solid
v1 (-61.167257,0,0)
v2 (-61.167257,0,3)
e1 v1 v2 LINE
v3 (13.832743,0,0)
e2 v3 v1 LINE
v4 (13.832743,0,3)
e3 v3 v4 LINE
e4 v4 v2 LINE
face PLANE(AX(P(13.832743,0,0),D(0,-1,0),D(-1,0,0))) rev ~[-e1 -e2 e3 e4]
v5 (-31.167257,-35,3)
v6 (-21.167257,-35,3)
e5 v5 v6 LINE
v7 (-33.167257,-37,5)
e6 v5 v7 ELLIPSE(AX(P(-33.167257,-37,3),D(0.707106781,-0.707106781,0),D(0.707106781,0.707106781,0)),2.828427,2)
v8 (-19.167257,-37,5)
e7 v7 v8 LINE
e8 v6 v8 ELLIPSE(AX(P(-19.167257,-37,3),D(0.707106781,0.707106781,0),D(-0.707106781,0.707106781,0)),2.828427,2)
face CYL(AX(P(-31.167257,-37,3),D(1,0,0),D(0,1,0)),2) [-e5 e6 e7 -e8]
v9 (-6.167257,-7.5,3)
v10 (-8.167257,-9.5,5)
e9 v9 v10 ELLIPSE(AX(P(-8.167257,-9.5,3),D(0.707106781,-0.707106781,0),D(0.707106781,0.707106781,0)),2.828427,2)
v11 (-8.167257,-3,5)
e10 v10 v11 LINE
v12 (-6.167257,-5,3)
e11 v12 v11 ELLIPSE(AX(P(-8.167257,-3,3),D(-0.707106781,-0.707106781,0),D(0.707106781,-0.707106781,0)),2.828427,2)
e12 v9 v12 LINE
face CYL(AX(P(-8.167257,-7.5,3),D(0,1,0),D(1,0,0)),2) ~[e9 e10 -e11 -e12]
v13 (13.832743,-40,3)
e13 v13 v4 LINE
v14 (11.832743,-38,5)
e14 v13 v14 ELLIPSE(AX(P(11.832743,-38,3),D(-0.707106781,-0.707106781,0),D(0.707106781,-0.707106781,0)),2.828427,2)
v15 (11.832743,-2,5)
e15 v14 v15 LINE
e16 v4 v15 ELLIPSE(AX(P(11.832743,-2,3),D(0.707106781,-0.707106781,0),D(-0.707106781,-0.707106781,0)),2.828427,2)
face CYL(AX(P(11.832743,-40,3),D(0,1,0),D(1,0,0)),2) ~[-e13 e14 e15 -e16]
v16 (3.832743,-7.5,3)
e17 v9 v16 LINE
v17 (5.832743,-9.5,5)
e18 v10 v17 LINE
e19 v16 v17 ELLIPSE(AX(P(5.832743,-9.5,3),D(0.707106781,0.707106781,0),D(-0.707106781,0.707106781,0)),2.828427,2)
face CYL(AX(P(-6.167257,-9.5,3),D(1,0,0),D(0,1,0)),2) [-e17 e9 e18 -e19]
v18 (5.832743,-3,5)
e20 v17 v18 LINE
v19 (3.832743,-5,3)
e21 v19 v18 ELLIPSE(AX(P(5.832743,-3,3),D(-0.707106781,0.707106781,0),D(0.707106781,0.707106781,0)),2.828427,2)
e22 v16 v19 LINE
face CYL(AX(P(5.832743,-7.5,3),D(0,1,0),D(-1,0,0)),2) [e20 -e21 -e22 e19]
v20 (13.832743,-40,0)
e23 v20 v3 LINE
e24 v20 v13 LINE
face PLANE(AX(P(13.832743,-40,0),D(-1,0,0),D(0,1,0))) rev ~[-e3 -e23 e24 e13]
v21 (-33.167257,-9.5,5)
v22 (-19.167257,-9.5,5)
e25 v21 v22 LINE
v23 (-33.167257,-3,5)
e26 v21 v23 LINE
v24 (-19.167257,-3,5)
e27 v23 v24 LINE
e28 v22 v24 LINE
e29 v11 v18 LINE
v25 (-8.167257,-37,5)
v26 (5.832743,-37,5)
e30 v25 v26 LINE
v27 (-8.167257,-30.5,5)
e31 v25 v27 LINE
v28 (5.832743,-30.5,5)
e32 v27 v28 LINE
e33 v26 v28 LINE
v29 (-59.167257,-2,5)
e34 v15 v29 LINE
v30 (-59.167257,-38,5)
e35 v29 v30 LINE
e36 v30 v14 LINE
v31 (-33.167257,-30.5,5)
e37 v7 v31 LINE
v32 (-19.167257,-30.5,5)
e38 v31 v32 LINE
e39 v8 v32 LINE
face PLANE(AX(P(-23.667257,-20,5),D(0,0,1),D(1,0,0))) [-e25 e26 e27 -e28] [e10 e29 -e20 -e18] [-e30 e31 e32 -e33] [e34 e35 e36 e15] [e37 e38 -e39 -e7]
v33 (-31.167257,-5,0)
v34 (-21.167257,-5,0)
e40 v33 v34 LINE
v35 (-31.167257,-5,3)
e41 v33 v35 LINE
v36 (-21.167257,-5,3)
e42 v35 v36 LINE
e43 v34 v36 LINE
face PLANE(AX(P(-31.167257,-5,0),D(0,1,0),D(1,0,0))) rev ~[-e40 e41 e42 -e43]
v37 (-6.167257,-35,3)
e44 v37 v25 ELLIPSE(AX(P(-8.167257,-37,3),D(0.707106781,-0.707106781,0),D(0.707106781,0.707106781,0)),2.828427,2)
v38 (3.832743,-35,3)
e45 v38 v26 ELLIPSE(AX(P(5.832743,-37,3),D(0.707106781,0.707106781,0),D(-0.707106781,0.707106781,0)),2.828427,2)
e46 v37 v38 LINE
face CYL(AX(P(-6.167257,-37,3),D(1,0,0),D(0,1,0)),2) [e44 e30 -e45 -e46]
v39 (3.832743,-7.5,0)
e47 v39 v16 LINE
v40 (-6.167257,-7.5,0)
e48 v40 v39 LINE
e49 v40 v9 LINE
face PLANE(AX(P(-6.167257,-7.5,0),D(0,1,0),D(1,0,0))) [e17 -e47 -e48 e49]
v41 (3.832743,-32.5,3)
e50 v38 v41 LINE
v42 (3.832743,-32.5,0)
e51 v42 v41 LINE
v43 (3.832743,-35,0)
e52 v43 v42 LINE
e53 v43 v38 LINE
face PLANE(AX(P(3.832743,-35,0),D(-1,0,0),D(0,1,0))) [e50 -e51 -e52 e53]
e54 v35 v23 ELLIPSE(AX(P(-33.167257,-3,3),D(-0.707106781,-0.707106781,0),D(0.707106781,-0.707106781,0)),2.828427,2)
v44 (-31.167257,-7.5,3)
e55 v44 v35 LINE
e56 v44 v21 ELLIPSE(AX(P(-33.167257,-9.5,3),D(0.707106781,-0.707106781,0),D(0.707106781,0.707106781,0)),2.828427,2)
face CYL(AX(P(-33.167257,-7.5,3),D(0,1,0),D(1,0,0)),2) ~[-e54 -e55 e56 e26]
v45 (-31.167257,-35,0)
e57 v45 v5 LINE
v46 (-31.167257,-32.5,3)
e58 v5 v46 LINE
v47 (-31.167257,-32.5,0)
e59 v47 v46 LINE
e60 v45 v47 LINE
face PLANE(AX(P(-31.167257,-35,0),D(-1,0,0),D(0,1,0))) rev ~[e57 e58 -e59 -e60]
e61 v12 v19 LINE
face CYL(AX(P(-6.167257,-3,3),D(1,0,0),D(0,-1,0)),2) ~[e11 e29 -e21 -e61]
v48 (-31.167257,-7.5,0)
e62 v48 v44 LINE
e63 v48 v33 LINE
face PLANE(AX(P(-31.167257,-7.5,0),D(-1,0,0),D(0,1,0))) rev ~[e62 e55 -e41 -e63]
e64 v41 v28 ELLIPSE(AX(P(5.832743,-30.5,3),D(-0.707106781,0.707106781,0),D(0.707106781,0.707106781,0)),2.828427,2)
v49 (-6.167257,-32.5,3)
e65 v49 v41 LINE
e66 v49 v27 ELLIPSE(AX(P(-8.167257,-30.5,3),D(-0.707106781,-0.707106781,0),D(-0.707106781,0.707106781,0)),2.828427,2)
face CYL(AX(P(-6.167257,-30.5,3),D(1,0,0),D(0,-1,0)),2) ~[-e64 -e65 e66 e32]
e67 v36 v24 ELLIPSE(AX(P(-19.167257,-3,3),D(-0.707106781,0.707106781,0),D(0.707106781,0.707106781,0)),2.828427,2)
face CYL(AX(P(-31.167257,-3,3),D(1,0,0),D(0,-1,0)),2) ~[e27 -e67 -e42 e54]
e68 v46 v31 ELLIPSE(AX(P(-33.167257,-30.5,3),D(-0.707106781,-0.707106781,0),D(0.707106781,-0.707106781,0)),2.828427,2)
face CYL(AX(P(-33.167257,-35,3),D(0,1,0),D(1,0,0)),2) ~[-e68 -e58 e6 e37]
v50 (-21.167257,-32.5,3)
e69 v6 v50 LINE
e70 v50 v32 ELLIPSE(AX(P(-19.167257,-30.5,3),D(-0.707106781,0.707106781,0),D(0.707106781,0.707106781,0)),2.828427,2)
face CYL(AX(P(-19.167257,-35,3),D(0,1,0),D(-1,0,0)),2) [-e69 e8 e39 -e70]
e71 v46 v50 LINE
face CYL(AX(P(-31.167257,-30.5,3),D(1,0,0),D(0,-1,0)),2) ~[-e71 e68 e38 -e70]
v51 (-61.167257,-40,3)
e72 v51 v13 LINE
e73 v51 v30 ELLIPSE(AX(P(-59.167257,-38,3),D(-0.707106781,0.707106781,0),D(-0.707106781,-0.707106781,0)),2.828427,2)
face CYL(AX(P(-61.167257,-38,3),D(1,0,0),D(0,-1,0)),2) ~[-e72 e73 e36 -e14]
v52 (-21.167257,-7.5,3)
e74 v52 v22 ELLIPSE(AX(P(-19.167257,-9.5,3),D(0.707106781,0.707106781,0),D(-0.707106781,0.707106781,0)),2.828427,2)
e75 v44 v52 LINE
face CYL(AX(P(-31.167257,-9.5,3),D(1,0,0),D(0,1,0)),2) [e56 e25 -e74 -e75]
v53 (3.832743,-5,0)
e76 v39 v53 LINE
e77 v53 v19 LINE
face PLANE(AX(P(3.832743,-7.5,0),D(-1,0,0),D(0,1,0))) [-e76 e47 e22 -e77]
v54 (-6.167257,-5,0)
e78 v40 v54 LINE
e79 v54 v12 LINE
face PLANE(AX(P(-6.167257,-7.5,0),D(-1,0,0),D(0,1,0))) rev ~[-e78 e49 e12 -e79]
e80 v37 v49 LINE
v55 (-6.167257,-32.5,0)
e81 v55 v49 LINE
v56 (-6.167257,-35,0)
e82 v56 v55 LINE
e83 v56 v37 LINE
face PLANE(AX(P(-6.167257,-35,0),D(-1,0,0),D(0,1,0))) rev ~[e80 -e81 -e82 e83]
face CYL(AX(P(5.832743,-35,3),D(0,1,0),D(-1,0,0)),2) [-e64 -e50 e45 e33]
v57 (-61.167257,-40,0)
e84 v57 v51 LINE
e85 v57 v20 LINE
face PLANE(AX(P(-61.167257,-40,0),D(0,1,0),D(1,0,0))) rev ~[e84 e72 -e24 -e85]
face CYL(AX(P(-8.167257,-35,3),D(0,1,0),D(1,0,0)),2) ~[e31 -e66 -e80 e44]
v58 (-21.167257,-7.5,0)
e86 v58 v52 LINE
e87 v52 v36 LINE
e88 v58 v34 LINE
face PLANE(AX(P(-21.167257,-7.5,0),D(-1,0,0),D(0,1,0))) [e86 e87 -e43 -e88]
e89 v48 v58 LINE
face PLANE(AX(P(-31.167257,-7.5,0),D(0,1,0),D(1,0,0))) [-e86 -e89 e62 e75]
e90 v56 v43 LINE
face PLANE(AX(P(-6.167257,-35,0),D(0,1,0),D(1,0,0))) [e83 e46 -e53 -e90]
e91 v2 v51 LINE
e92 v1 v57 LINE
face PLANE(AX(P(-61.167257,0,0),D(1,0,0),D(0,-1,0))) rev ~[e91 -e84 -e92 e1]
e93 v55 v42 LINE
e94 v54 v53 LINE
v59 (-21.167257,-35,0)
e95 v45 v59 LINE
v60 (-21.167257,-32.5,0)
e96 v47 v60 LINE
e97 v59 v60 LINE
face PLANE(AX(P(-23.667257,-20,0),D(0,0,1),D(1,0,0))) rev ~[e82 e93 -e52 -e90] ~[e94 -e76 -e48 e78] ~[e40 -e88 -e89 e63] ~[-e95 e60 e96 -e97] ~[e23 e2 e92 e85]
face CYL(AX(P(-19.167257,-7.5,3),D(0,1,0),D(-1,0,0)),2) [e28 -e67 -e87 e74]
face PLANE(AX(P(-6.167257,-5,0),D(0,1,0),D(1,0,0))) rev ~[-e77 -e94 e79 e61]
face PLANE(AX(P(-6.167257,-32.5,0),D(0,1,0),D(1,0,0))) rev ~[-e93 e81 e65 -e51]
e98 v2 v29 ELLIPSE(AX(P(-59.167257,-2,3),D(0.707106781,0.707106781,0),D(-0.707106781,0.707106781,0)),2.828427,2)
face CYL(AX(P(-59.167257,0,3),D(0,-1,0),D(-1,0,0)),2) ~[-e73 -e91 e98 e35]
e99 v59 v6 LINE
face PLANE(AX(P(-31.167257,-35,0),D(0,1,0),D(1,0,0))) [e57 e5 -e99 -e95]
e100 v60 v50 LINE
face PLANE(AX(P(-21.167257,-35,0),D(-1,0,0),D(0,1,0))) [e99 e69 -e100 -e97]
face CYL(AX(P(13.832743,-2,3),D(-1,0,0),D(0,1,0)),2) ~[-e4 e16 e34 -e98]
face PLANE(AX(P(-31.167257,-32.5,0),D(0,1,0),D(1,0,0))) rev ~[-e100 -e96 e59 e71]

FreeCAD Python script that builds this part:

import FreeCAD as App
import Part
import Sketcher
from FreeCAD import Vector
Q = App.Units.Quantity


def edges_at(feature, points):
    """Names of the edges that pass closest to the given points."""
    edges = feature.Shape.Edges
    near = lambda p: min(range(len(edges)), key=lambda i: edges[i].distToShape(Part.Vertex(*p))[0])
    return sorted({f"Edge{near(p) + 1}" for p in points})

doc = App.newDocument("Part")
body = doc.addObject("PartDesign::Body", "Body")

# Sketch on XY plane
sketch1 = body.newObject("Sketcher::SketchObject", "Sketch")
sketch1.AttachmentSupport = (doc.getObject("XY_Plane"), [""])
sketch1.MapMode = "FlatFace"
sketch1.addGeometry([
    Part.LineSegment(Vector(13.832743, 0, 0), Vector(-61.167257, 0, 0)),  # 0
    Part.LineSegment(Vector(-61.167257, 0, 0), Vector(-61.167257, -40, 0)),  # 1
    Part.LineSegment(Vector(-61.167257, -40, 0), Vector(13.832743, -40, 0)),  # 2
    Part.LineSegment(Vector(13.832743, -40, 0), Vector(13.832743, 0, 0)),  # 3
    Part.LineSegment(Vector(-21.167257, -35, 0), Vector(-31.167257, -35, 0)),  # 4
    Part.LineSegment(Vector(-31.167257, -35, 0), Vector(-31.167257, -32.5, 0)),  # 5
    Part.LineSegment(Vector(-31.167257, -32.5, 0), Vector(-21.167257, -32.5, 0)),  # 6
    Part.LineSegment(Vector(-21.167257, -32.5, 0), Vector(-21.167257, -35, 0)),  # 7
    Part.LineSegment(Vector(3.832743, -35, 0), Vector(-6.167257, -35, 0)),  # 8
    Part.LineSegment(Vector(-6.167257, -35, 0), Vector(-6.167257, -32.5, 0)),  # 9
    Part.LineSegment(Vector(-6.167257, -32.5, 0), Vector(3.832743, -32.5, 0)),  # 10
    Part.LineSegment(Vector(3.832743, -32.5, 0), Vector(3.832743, -35, 0)),  # 11
    Part.LineSegment(Vector(-21.167257, -7.5, 0), Vector(-31.167257, -7.5, 0)),  # 12
    Part.LineSegment(Vector(-31.167257, -7.5, 0), Vector(-31.167257, -5, 0)),  # 13
    Part.LineSegment(Vector(-31.167257, -5, 0), Vector(-21.167257, -5, 0)),  # 14
    Part.LineSegment(Vector(-21.167257, -5, 0), Vector(-21.167257, -7.5, 0)),  # 15
    Part.LineSegment(Vector(3.832743, -7.5, 0), Vector(-6.167257, -7.5, 0)),  # 16
    Part.LineSegment(Vector(-6.167257, -7.5, 0), Vector(-6.167257, -5, 0)),  # 17
    Part.LineSegment(Vector(-6.167257, -5, 0), Vector(3.832743, -5, 0)),  # 18
    Part.LineSegment(Vector(3.832743, -5, 0), Vector(3.832743, -7.5, 0)),  # 19
], False)
sketch1.addConstraint([
    Sketcher.Constraint("Coincident", 0, 2, 1, 1),
    Sketcher.Constraint("Coincident", 1, 2, 2, 1),
    Sketcher.Constraint("Coincident", 2, 2, 3, 1),
    Sketcher.Constraint("Coincident", 3, 2, 0, 1),
    Sketcher.Constraint("Coincident", 4, 2, 5, 1),
    Sketcher.Constraint("Coincident", 5, 2, 6, 1),
    Sketcher.Constraint("Coincident", 6, 2, 7, 1),
    Sketcher.Constraint("Coincident", 7, 2, 4, 1),
    Sketcher.Constraint("Coincident", 8, 2, 9, 1),
    Sketcher.Constraint("Coincident", 9, 2, 10, 1),
    Sketcher.Constraint("Coincident", 10, 2, 11, 1),
    Sketcher.Constraint("Coincident", 11, 2, 8, 1),
    Sketcher.Constraint("Coincident", 12, 2, 13, 1),
    Sketcher.Constraint("Coincident", 13, 2, 14, 1),
    Sketcher.Constraint("Coincident", 14, 2, 15, 1),
    Sketcher.Constraint("Coincident", 15, 2, 12, 1),
    Sketcher.Constraint("Coincident", 16, 2, 17, 1),
    Sketcher.Constraint("Coincident", 17, 2, 18, 1),
    Sketcher.Constraint("Coincident", 18, 2, 19, 1),
    Sketcher.Constraint("Coincident", 19, 2, 16, 1),
    Sketcher.Constraint("Horizontal", 0),
    Sketcher.Constraint("Vertical", 1),
    Sketcher.Constraint("Horizontal", 2),
    Sketcher.Constraint("Vertical", 3),
    Sketcher.Constraint("Horizontal", 4),
    Sketcher.Constraint("Vertical", 5),
    Sketcher.Constraint("Horizontal", 6),
    Sketcher.Constraint("Vertical", 7),
    Sketcher.Constraint("Horizontal", 8),
    Sketcher.Constraint("Vertical", 9),
    Sketcher.Constraint("Horizontal", 10),
    Sketcher.Constraint("Vertical", 11),
    Sketcher.Constraint("Horizontal", 12),
    Sketcher.Constraint("Vertical", 13),
    Sketcher.Constraint("Horizontal", 14),
    Sketcher.Constraint("Vertical", 15),
    Sketcher.Constraint("Horizontal", 16),
    Sketcher.Constraint("Vertical", 17),
    Sketcher.Constraint("Horizontal", 18),
    Sketcher.Constraint("Vertical", 19),
    Sketcher.Constraint("PointOnObject", 0, 2, -1),
    Sketcher.Constraint("Horizontal", 7, 2, 8, 2),
    Sketcher.Constraint("Horizontal", 6, 2, 9, 2),
    Sketcher.Constraint("Horizontal", 15, 2, 16, 2),
    Sketcher.Constraint("Horizontal", 14, 2, 17, 2),
    Sketcher.Constraint("Vertical", 5, 2, 12, 2),
    Sketcher.Constraint("Vertical", 7, 2, 14, 2),
    Sketcher.Constraint("Vertical", 9, 2, 16, 2),
    Sketcher.Constraint("Vertical", 11, 2, 18, 2),
    Sketcher.Constraint("Equal", 6, 8),
    Sketcher.Constraint("Equal", 11, 13),
    Sketcher.Constraint("DistanceX", 0, 2, 0, 1, Q("75 mm")),
    Sketcher.Constraint("DistanceX", 4, 2, 4, 1, Q("10 mm")),
    Sketcher.Constraint("DistanceY", 1, 2, 1, 1, Q("40 mm")),
    Sketcher.Constraint("DistanceY", 5, 1, 5, 2, Q("2.5 mm")),
    Sketcher.Constraint("DistanceY", 4, 2, -1, 1, Q("35 mm")),
    Sketcher.Constraint("DistanceY", 13, 2, -1, 1, Q("5 mm")),
    Sketcher.Constraint("DistanceX", 1, 2, 4, 2, Q("30 mm")),
    Sketcher.Constraint("DistanceX", 7, 2, 8, 2, Q("15 mm")),
    Sketcher.Constraint("DistanceX", 0, 2, -1, 1, Q("61.167257 mm")),
])
pad1 = body.newObject("PartDesign::Pad", "Pad")
pad1.Profile = sketch1
pad1.Length = 5
doc.recompute()

fillet = body.newObject("PartDesign::Fillet", "Fillet")
fillet.Base = (pad1, edges_at(pad1, [
    (-1.167, -5, 5),
    (3.833, -6.25, 5),
    (-1.167, -7.5, 5),
    (-6.167, -6.25, 5),
    (-21.167, -6.25, 5),
    (-26.167, -5, 5),
    (-26.167, -7.5, 5),
    (-23.667, 0, 5),
    (-61.167, -20, 5),
    (-23.667, -40, 5),
    (13.833, -20, 5),
    (-26.167, -32.5, 5),
    (-21.167, -33.75, 5),
    (-26.167, -35, 5),
    (-31.167, -33.75, 5),
    (-6.167, -33.75, 5),
    (-1.167, -32.5, 5),
    (3.833, -33.75, 5),
    (-1.167, -35, 5),
    (-31.167, -6.25, 5),
]))
fillet.Radius = 2

doc.recompute()
